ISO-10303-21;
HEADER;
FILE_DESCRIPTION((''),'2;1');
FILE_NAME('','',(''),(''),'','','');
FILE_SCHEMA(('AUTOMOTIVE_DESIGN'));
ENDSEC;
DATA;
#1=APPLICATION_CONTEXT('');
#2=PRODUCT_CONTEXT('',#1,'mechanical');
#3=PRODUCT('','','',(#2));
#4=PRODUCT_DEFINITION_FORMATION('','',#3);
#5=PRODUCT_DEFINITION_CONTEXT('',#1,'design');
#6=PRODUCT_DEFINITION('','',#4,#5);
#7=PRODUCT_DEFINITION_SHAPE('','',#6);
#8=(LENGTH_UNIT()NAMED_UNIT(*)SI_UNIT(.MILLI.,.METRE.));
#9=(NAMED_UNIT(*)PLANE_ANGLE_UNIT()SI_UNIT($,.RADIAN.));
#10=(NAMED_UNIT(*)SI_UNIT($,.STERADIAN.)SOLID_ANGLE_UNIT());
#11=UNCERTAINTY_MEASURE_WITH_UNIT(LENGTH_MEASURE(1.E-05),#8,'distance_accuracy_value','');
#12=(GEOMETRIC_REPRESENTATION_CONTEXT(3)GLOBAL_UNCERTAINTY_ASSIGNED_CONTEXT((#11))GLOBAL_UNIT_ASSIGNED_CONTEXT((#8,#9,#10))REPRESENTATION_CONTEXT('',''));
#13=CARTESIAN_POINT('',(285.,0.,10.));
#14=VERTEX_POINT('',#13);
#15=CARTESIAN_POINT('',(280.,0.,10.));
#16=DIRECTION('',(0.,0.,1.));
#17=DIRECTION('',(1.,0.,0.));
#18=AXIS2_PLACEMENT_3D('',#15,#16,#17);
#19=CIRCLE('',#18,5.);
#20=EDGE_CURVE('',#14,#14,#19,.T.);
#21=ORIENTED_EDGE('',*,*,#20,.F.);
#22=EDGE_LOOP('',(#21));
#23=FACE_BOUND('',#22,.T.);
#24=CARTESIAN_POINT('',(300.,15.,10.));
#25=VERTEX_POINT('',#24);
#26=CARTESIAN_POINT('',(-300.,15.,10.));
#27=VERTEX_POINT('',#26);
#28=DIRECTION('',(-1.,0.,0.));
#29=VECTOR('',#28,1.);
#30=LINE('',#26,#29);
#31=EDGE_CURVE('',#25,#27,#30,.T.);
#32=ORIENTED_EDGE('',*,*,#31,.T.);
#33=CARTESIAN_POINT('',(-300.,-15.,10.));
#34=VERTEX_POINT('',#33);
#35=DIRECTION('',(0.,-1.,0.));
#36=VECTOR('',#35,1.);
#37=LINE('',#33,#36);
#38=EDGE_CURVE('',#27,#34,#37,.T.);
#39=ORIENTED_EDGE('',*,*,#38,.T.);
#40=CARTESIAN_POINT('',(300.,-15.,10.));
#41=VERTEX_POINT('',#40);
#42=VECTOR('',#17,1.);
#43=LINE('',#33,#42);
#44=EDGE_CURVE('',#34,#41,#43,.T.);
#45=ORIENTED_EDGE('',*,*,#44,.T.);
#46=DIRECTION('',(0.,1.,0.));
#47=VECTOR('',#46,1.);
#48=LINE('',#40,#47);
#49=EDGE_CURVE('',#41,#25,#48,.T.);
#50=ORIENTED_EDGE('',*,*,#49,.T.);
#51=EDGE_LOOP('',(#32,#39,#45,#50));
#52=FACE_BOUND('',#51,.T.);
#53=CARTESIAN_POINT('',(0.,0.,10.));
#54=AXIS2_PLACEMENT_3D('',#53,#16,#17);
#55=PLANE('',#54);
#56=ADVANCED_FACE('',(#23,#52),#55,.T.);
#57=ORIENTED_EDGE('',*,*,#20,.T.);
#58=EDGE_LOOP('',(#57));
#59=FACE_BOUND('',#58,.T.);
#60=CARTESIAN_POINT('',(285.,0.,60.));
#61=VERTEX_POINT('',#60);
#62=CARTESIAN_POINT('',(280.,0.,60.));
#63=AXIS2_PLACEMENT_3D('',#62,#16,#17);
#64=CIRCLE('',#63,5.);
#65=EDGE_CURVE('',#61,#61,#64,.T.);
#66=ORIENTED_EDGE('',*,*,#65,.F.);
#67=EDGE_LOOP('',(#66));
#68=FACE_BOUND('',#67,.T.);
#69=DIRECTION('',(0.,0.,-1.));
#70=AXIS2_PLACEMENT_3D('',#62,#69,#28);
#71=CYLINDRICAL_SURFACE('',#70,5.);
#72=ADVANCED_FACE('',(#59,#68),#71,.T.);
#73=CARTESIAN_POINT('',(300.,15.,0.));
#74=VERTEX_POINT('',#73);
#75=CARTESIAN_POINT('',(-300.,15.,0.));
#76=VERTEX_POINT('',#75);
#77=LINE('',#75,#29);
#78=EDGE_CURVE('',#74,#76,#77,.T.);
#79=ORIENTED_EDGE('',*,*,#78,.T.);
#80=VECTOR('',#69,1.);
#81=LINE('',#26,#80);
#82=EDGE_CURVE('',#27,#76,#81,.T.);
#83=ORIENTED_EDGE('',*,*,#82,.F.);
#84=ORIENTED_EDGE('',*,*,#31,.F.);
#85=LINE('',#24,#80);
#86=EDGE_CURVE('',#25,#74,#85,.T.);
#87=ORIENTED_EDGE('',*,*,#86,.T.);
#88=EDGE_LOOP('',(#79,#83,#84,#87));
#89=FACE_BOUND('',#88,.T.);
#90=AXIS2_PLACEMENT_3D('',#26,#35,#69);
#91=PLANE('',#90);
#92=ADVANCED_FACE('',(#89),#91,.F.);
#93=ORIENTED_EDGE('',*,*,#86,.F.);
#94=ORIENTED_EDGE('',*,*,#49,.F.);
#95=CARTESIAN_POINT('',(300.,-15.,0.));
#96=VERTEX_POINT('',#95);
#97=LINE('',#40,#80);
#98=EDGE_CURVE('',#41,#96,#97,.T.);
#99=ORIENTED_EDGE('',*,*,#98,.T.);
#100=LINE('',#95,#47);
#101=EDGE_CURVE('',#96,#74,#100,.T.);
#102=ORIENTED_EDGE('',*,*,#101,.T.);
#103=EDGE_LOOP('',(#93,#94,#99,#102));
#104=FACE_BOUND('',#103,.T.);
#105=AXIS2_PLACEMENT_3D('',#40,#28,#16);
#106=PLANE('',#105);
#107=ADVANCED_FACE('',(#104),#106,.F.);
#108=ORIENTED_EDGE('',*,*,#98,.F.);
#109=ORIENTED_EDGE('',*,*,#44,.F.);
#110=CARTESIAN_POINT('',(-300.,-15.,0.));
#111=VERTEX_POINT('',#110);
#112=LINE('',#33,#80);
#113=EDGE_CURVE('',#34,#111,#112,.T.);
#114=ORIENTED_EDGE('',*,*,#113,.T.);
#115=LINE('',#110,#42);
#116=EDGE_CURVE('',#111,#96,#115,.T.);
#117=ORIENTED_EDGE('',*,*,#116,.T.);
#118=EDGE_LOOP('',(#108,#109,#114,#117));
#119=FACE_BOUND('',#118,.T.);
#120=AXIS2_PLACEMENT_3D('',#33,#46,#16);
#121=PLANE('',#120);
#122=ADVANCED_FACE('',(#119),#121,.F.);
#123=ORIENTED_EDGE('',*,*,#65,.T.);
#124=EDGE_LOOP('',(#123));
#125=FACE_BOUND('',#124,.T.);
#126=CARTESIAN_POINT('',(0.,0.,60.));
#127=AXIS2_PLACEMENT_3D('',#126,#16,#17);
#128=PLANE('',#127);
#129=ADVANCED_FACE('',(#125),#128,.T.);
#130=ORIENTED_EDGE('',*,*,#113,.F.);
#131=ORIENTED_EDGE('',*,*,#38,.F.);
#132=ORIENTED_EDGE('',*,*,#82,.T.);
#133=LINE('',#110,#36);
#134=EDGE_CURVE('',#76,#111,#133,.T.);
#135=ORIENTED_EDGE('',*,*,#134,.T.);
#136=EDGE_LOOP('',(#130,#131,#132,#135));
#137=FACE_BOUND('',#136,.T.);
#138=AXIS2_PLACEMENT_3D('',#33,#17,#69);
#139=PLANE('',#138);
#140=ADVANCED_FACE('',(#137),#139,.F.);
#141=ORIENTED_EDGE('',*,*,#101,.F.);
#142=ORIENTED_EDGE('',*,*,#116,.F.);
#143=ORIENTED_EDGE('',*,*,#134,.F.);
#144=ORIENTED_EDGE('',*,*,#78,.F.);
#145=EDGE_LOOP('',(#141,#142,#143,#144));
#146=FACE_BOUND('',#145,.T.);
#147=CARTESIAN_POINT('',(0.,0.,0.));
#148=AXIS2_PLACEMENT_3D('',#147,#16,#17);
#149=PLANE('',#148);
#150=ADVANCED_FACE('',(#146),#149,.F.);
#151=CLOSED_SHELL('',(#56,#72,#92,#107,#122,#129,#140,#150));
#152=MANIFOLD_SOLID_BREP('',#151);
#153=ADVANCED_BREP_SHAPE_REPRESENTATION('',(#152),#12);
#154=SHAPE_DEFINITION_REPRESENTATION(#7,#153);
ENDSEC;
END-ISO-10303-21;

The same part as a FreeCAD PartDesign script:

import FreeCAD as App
import Part
import Sketcher

V = App.Vector
Q = App.Units.Quantity


def add_polygon(sketch, points):
    """Adds a closed chain of lines whose ends are joined by coincident constraints."""
    first, n = sketch.GeometryCount, len(points)
    for a, b in zip(points, points[1:] + points[:1]):
        sketch.addGeometry(Part.LineSegment(App.Vector(*a, 0), App.Vector(*b, 0)), False)
    for i in range(n):
        sketch.addConstraint(Sketcher.Constraint("Coincident", first + i, 2, first + (i + 1) % n, 1))

doc = App.newDocument("Part")
params = doc.addObject("Spreadsheet::Sheet", "Params")
for row, (alias, value) in enumerate([
    ("sketch1_width", "600 mm"),
    ("sketch1_height", "30 mm"),
    ("pad1_length", "10 mm"),
    ("sketch2_diameter", "10 mm"),
    ("pad2_length", "50 mm"),
], start=1):
    params.set(f"A{row}", alias)
    params.set(f"B{row}", "=" + value)
    params.setAlias(f"B{row}", alias)

body = doc.addObject("PartDesign::Body", "Body")

# Sketch on XY plane
sketch1 = body.newObject("Sketcher::SketchObject", "Sketch")
sketch1.AttachmentSupport = (doc.getObject("XY_Plane"), [""])
sketch1.MapMode = "FlatFace"
add_polygon(sketch1, [(-300, 15), (-300, -15), (300, -15), (300, 15)])  # lines 0-3
sketch1.addConstraint([
    Sketcher.Constraint("Vertical", 0),
    Sketcher.Constraint("Horizontal", 1),
    Sketcher.Constraint("Vertical", 2),
    Sketcher.Constraint("Horizontal", 3),
    Sketcher.Constraint("Symmetric", 0, 2, 2, 2, -1, 1),
    Sketcher.Constraint("DistanceX", 1, 1, 1, 2, Q("600 mm")),
    Sketcher.Constraint("DistanceY", 0, 2, 0, 1, Q("30 mm")),
])
sketch1.setExpression("Constraints[9]", "Params.sketch1_width")
sketch1.setExpression("Constraints[10]", "Params.sketch1_height")
pad1 = body.newObject("PartDesign::Pad", "Pad")
pad1.Profile = sketch1
pad1.setExpression("Length", "Params.pad1_length")

# Sketch on XY plane
sketch2 = body.newObject("Sketcher::SketchObject", "Sketch001")
sketch2.AttachmentSupport = (doc.getObject("XY_Plane"), [""])
sketch2.MapMode = "FlatFace"
sketch2.AttachmentOffset = App.Placement(V(0, 0, 10), App.Rotation())
sketch2.addGeometry(Part.Circle(V(280, 0, 0), V(0, 0, 1), 5), False)
sketch2.addConstraint([
    Sketcher.Constraint("PointOnObject", 0, 3, -1),
    Sketcher.Constraint("Diameter", 0, Q("10 mm")),
    Sketcher.Constraint("DistanceX", -1, 1, 0, 3, Q("280 mm")),
])
sketch2.setExpression("Constraints[1]", "Params.sketch2_diameter")
pad2 = body.newObject("PartDesign::Pad", "Pad001")
pad2.Profile = sketch2
pad2.setExpression("Length", "Params.pad2_length")

doc.recompute()
